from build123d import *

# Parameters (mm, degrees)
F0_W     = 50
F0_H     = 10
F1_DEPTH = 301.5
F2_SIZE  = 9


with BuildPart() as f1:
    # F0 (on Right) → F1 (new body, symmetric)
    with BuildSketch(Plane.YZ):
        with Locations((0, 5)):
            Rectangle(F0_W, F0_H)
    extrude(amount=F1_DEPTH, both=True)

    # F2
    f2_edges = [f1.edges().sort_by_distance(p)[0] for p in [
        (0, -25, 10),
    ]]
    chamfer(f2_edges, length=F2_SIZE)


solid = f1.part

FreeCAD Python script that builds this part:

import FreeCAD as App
import Part
import Sketcher
Q = App.Units.Quantity


def edges_at(feature, points):
    """Names of the edges that pass closest to the given points."""
    edges = feature.Shape.Edges
    near = lambda p: min(range(len(edges)), key=lambda i: edges[i].distToShape(Part.Vertex(*p))[0])
    return sorted({f"Edge{near(p) + 1}" for p in points})

doc = App.newDocument("Part")
body = doc.addObject("PartDesign::Body", "Body")

# Sketch on YZ plane
sketch1 = body.newObject("Sketcher::SketchObject", "Sketch")
sketch1.AttachmentSupport = (doc.getObject("YZ_Plane"), [""])
sketch1.MapMode = "FlatFace"
sketch1.addGeometry([
    Part.LineSegment(App.Vector(-25, 10, 0), App.Vector(-25, 0, 0)),
    Part.LineSegment(App.Vector(-25, 0, 0), App.Vector(25, 0, 0)),
    Part.LineSegment(App.Vector(25, 0, 0), App.Vector(25, 10, 0)),
    Part.LineSegment(App.Vector(25, 10, 0), App.Vector(-25, 10, 0)),
], False)
sketch1.addConstraint([
    Sketcher.Constraint("Coincident", 0, 2, 1, 1),
    Sketcher.Constraint("Coincident", 1, 2, 2, 1),
    Sketcher.Constraint("Coincident", 2, 2, 3, 1),
    Sketcher.Constraint("Coincident", 3, 2, 0, 1),
    Sketcher.Constraint("Vertical", 0),
    Sketcher.Constraint("Horizontal", 1),
    Sketcher.Constraint("Vertical", 2),
    Sketcher.Constraint("Horizontal", 3),
    Sketcher.Constraint("Symmetric", 0, 2, 1, 2, -1, 1),
    Sketcher.Constraint("DistanceX", 1, 1, 1, 2, Q("50 mm")),
    Sketcher.Constraint("DistanceY", 0, 2, 0, 1, Q("10 mm")),
])
pad1 = body.newObject("PartDesign::Pad", "Pad")
pad1.Profile = sketch1
pad1.Length = 603
pad1.Midplane = True
doc.recompute()

chamfer = body.newObject("PartDesign::Chamfer", "Chamfer")
chamfer.Base = (pad1, edges_at(pad1, [(0, -25, 10)]))
chamfer.Size = 9

doc.recompute()
